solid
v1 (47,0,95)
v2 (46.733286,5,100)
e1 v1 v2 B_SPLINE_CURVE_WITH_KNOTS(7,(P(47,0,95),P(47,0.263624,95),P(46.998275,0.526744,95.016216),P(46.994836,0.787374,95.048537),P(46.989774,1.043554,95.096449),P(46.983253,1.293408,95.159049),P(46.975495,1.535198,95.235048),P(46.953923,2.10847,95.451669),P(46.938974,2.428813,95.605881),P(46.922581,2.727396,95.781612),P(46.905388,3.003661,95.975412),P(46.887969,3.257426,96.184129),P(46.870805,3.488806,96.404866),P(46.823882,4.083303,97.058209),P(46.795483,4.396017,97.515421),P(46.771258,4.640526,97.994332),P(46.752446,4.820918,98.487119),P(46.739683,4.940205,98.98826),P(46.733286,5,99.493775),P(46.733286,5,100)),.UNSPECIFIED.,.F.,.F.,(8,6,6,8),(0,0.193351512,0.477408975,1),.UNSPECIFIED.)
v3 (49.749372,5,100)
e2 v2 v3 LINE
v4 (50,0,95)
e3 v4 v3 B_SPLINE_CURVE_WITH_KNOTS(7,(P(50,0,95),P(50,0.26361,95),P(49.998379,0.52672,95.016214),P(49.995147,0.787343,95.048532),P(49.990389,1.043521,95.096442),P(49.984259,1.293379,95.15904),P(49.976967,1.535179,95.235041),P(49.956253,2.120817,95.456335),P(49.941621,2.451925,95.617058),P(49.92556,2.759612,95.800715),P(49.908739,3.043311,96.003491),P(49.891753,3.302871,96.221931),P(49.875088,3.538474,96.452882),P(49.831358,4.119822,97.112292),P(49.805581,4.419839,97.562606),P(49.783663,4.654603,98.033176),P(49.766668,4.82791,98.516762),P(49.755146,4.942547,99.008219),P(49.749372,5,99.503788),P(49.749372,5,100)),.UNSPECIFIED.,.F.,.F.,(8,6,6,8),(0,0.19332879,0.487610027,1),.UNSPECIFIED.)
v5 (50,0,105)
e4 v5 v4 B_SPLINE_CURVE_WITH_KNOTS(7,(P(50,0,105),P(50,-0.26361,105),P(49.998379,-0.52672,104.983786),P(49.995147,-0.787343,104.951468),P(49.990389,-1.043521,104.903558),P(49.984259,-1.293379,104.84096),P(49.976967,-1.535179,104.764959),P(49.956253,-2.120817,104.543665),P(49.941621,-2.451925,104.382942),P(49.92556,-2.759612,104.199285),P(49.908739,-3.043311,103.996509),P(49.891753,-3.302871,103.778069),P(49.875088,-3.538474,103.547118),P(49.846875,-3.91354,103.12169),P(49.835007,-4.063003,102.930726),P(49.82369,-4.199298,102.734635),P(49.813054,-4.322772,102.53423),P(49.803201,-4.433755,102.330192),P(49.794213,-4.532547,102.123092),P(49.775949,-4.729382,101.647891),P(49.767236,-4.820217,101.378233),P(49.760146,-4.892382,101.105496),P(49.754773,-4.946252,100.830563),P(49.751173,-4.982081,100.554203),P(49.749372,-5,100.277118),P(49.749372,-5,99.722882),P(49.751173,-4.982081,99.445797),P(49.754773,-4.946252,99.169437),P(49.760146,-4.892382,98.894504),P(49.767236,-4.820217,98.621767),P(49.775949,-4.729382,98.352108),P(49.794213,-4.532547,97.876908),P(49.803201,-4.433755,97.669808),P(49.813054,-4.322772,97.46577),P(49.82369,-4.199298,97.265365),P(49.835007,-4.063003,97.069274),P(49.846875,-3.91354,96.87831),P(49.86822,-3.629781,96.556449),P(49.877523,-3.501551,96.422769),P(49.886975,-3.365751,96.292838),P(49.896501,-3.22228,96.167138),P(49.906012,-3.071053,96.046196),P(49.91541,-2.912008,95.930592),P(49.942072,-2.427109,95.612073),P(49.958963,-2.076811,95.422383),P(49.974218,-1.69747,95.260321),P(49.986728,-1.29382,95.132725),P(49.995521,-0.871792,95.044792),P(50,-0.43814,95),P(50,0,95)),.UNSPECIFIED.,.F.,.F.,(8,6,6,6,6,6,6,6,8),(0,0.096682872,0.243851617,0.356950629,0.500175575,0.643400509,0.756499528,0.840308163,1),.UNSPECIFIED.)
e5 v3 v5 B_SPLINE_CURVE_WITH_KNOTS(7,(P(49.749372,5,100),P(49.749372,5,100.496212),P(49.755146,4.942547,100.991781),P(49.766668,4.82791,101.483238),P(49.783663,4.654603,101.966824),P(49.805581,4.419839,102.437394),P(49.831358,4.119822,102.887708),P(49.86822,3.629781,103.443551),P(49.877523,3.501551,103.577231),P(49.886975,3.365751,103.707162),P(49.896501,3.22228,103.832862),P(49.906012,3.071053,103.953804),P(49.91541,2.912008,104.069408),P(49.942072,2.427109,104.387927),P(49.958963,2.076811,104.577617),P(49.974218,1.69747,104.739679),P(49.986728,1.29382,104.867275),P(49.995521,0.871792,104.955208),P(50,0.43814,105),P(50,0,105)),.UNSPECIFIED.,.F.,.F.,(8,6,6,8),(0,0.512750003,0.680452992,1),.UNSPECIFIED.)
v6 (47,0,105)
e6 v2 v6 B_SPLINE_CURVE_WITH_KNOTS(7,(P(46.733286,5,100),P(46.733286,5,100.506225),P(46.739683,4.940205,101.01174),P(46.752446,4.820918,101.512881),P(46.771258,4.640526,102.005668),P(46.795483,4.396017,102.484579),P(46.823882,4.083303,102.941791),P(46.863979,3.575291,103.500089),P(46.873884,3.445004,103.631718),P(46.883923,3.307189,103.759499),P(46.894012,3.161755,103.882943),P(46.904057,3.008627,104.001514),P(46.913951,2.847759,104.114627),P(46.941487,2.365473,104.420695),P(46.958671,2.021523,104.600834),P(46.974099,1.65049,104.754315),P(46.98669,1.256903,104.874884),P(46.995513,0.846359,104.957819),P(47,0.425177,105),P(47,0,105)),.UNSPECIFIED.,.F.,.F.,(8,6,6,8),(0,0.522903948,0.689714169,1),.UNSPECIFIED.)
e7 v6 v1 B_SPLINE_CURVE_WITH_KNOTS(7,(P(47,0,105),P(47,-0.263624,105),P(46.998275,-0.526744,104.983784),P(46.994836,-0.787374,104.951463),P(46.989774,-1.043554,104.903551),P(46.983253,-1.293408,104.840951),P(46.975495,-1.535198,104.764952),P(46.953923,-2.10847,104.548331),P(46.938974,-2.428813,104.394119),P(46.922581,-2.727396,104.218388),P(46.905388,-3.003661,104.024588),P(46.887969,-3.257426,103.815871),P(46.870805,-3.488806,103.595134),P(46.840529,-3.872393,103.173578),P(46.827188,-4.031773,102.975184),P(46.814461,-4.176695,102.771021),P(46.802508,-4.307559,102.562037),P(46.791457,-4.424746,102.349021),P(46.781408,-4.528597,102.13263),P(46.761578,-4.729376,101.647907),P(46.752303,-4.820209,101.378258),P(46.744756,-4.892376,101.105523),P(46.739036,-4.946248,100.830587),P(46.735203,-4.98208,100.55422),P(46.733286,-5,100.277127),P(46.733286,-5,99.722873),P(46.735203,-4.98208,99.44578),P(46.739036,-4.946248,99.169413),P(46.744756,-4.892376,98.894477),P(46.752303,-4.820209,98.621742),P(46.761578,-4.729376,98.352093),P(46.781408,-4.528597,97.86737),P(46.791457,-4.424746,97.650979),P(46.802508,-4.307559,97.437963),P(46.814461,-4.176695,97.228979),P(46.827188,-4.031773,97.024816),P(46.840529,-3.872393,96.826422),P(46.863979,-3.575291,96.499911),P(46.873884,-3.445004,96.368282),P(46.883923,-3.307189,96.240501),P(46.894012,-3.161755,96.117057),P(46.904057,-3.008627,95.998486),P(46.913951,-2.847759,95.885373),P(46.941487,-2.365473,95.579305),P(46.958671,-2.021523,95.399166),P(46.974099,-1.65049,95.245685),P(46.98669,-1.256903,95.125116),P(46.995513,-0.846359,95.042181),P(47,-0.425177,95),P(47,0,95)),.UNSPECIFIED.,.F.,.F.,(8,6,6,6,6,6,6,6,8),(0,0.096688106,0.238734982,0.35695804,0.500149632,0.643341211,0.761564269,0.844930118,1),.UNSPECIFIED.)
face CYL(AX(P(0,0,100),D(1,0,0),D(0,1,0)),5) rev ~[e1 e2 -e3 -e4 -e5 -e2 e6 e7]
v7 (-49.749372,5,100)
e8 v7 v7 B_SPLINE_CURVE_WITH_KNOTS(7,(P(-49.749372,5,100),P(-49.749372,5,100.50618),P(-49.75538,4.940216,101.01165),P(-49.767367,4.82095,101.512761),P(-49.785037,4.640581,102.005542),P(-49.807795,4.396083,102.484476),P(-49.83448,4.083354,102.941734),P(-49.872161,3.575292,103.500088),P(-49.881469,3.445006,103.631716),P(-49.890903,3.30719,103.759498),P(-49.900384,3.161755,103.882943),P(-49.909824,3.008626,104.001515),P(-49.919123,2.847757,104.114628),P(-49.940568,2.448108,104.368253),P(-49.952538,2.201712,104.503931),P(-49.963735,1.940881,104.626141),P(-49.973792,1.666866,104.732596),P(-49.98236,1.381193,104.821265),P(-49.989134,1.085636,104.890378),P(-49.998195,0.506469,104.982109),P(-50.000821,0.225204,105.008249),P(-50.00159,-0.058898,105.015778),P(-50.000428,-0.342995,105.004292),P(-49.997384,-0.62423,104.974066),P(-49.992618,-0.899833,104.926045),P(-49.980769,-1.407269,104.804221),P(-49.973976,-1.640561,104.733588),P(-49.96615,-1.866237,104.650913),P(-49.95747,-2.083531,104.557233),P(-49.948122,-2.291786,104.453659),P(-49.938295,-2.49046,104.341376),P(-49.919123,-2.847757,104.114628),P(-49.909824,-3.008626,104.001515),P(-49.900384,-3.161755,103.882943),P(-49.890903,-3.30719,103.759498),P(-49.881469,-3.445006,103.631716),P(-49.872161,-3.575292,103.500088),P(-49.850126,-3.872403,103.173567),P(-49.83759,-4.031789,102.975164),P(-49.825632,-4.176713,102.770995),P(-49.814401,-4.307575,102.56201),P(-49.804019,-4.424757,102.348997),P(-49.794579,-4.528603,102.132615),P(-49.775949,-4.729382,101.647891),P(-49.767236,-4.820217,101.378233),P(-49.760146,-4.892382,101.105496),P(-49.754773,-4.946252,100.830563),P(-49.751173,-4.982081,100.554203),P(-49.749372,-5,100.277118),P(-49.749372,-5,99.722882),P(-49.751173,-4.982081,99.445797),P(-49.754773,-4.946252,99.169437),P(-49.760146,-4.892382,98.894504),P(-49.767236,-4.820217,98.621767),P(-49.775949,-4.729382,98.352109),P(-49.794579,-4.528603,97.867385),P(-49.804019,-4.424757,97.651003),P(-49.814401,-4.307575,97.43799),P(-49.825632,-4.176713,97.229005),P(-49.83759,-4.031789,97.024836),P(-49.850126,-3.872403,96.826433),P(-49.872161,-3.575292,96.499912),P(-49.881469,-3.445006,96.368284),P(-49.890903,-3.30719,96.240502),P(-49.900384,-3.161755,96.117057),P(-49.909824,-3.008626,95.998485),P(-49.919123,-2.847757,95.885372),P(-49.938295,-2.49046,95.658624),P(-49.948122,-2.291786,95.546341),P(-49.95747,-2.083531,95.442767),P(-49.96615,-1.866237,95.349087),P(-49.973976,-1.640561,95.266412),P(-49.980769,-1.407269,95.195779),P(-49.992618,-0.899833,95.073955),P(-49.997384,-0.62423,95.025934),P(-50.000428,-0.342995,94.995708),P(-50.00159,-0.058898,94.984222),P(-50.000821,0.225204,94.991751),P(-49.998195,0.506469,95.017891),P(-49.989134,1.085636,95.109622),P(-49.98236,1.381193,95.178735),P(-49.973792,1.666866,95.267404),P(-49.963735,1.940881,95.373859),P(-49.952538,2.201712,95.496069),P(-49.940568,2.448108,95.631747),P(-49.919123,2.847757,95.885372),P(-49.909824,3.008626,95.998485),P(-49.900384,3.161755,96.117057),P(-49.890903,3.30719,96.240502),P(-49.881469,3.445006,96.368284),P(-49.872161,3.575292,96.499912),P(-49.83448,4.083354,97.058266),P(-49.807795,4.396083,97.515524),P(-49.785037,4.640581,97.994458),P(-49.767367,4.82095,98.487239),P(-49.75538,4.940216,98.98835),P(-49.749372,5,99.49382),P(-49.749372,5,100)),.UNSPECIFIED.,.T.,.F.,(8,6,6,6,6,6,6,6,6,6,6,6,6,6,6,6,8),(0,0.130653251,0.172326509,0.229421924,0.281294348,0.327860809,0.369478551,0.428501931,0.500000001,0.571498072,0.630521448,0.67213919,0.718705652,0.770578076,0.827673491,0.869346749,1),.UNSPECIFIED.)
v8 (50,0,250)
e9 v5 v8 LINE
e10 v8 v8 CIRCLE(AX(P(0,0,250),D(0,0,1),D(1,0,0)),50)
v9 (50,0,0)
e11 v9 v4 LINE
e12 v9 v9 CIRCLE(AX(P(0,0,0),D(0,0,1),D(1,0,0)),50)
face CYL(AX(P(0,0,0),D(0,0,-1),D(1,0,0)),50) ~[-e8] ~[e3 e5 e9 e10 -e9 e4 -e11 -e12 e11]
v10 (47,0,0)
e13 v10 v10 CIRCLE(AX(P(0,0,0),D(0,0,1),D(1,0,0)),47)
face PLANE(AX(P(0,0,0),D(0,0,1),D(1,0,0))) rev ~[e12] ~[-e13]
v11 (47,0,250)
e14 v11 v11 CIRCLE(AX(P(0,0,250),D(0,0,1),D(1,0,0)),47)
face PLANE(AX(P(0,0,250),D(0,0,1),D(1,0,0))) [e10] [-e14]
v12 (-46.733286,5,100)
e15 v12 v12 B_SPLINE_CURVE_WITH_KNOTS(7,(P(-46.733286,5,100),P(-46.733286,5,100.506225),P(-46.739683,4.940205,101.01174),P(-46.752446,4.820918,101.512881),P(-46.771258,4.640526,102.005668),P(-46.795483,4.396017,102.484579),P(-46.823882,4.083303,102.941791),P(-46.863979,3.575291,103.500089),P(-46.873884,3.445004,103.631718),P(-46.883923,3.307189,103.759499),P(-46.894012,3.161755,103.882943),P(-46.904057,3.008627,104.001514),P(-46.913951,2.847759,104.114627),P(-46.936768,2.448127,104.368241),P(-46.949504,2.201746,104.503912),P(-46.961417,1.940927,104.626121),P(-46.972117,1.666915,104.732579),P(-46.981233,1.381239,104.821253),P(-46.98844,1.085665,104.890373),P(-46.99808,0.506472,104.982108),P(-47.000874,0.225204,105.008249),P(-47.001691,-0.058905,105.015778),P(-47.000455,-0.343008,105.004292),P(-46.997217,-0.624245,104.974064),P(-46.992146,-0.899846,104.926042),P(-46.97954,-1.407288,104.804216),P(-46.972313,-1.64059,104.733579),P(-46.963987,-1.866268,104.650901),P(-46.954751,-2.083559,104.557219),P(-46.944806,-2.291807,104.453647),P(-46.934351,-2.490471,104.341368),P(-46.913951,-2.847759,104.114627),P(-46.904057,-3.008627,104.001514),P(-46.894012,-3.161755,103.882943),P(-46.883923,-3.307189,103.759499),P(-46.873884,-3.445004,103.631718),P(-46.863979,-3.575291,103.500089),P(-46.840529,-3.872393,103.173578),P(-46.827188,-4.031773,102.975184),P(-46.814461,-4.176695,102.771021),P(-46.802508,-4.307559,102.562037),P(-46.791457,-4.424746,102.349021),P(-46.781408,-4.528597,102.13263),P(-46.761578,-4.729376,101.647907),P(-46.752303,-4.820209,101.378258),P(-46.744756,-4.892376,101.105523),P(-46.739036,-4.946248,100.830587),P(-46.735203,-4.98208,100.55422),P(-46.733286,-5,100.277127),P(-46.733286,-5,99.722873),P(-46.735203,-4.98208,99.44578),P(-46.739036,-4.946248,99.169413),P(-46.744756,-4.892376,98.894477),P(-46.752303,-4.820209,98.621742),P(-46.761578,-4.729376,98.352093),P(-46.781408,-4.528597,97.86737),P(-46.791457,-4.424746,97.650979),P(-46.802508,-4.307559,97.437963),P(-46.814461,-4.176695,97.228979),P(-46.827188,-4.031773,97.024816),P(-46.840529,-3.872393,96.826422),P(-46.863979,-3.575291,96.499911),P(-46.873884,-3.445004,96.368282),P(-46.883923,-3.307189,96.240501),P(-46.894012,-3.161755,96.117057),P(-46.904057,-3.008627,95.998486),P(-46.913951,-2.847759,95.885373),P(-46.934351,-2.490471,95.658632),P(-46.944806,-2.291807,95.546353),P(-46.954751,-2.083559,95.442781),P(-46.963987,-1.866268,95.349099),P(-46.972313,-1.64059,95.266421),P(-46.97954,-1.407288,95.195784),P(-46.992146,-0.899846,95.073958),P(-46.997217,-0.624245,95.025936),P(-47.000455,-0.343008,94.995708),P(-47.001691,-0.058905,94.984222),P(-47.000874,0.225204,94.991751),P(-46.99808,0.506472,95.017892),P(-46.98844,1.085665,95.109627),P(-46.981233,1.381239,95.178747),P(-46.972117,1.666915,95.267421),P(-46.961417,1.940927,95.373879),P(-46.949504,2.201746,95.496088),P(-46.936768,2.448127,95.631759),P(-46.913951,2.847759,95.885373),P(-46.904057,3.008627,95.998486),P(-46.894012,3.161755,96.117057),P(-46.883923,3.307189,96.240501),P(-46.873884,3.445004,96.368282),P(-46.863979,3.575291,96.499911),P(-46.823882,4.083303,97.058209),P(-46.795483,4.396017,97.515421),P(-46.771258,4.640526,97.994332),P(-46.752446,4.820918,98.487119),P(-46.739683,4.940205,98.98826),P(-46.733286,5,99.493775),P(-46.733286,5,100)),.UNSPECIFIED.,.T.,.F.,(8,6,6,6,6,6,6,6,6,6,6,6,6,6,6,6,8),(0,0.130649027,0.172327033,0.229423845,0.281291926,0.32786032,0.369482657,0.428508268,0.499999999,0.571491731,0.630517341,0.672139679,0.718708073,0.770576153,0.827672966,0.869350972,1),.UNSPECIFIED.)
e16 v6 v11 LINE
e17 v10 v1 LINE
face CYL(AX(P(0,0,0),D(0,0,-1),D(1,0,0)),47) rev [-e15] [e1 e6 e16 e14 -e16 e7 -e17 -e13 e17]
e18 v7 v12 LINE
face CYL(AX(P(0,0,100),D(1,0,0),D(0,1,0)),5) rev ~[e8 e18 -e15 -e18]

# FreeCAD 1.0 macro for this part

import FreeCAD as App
import Part
import Sketcher
from FreeCAD import Vector
Q = App.Units.Quantity

doc = App.newDocument("Part")
params = doc.addObject("Spreadsheet::Sheet", "Params")
for row, (alias, value) in enumerate([
    ("sketch1_diameter", "100 mm"),
    ("sketch1_diameter2", "94 mm"),
    ("pad1_length", "250 mm"),
    ("sketch2_diameter", "10 mm"),
    ("pocket1_length", "200 mm"),
], start=1):
    params.set(f"A{row}", alias)
    params.set(f"B{row}", "=" + value)
    params.setAlias(f"B{row}", alias)

body = doc.addObject("PartDesign::Body", "Body")

# Sketch on XY plane
sketch1 = doc.addObject("Sketcher::SketchObject", "Sketch")
body.addObject(sketch1)
sketch1.AttachmentSupport = (doc.XY_Plane, [""])
sketch1.MapMode = "FlatFace"
sketch1.addGeometry([
    Part.Circle(Vector(0, 0, 0), Vector(0, 0, 1), 50),
    Part.Circle(Vector(0, 0, 0), Vector(0, 0, 1), 47),
], False)
sketch1.addConstraint([
    Sketcher.Constraint("Coincident", 0, 3, -1, 1),
    Sketcher.Constraint("Coincident", 1, 3, -1, 1),
    Sketcher.Constraint("Diameter", 0, Q("100 mm")),
    Sketcher.Constraint("Diameter", 1, Q("94 mm")),
])
sketch1.setExpression("Constraints[2]", "Params.sketch1_diameter")
sketch1.setExpression("Constraints[3]", "Params.sketch1_diameter2")
pad1 = doc.addObject("PartDesign::Pad", "Pad")
body.addObject(pad1)
pad1.Profile = sketch1
pad1.setExpression("Length", "Params.pad1_length")

# Sketch on YZ plane
sketch2 = doc.addObject("Sketcher::SketchObject", "Sketch001")
body.addObject(sketch2)
sketch2.AttachmentSupport = (doc.YZ_Plane, [""])
sketch2.MapMode = "FlatFace"
sketch2.addGeometry(Part.Circle(Vector(0, 100, 0), Vector(0, 0, 1), 5), False)
sketch2.addConstraint([
    Sketcher.Constraint("PointOnObject", 0, 3, -2),
    Sketcher.Constraint("Diameter", 0, Q("10 mm")),
    Sketcher.Constraint("DistanceY", -1, 1, 0, 3, Q("100 mm")),
])
sketch2.setExpression("Constraints[1]", "Params.sketch2_diameter")
pocket1 = doc.addObject("PartDesign::Pocket", "Pocket")
body.addObject(pocket1)
pocket1.Profile = sketch2
pocket1.setExpression("Length", "Params.pocket1_length")
pocket1.Midplane = True

doc.recompute()
